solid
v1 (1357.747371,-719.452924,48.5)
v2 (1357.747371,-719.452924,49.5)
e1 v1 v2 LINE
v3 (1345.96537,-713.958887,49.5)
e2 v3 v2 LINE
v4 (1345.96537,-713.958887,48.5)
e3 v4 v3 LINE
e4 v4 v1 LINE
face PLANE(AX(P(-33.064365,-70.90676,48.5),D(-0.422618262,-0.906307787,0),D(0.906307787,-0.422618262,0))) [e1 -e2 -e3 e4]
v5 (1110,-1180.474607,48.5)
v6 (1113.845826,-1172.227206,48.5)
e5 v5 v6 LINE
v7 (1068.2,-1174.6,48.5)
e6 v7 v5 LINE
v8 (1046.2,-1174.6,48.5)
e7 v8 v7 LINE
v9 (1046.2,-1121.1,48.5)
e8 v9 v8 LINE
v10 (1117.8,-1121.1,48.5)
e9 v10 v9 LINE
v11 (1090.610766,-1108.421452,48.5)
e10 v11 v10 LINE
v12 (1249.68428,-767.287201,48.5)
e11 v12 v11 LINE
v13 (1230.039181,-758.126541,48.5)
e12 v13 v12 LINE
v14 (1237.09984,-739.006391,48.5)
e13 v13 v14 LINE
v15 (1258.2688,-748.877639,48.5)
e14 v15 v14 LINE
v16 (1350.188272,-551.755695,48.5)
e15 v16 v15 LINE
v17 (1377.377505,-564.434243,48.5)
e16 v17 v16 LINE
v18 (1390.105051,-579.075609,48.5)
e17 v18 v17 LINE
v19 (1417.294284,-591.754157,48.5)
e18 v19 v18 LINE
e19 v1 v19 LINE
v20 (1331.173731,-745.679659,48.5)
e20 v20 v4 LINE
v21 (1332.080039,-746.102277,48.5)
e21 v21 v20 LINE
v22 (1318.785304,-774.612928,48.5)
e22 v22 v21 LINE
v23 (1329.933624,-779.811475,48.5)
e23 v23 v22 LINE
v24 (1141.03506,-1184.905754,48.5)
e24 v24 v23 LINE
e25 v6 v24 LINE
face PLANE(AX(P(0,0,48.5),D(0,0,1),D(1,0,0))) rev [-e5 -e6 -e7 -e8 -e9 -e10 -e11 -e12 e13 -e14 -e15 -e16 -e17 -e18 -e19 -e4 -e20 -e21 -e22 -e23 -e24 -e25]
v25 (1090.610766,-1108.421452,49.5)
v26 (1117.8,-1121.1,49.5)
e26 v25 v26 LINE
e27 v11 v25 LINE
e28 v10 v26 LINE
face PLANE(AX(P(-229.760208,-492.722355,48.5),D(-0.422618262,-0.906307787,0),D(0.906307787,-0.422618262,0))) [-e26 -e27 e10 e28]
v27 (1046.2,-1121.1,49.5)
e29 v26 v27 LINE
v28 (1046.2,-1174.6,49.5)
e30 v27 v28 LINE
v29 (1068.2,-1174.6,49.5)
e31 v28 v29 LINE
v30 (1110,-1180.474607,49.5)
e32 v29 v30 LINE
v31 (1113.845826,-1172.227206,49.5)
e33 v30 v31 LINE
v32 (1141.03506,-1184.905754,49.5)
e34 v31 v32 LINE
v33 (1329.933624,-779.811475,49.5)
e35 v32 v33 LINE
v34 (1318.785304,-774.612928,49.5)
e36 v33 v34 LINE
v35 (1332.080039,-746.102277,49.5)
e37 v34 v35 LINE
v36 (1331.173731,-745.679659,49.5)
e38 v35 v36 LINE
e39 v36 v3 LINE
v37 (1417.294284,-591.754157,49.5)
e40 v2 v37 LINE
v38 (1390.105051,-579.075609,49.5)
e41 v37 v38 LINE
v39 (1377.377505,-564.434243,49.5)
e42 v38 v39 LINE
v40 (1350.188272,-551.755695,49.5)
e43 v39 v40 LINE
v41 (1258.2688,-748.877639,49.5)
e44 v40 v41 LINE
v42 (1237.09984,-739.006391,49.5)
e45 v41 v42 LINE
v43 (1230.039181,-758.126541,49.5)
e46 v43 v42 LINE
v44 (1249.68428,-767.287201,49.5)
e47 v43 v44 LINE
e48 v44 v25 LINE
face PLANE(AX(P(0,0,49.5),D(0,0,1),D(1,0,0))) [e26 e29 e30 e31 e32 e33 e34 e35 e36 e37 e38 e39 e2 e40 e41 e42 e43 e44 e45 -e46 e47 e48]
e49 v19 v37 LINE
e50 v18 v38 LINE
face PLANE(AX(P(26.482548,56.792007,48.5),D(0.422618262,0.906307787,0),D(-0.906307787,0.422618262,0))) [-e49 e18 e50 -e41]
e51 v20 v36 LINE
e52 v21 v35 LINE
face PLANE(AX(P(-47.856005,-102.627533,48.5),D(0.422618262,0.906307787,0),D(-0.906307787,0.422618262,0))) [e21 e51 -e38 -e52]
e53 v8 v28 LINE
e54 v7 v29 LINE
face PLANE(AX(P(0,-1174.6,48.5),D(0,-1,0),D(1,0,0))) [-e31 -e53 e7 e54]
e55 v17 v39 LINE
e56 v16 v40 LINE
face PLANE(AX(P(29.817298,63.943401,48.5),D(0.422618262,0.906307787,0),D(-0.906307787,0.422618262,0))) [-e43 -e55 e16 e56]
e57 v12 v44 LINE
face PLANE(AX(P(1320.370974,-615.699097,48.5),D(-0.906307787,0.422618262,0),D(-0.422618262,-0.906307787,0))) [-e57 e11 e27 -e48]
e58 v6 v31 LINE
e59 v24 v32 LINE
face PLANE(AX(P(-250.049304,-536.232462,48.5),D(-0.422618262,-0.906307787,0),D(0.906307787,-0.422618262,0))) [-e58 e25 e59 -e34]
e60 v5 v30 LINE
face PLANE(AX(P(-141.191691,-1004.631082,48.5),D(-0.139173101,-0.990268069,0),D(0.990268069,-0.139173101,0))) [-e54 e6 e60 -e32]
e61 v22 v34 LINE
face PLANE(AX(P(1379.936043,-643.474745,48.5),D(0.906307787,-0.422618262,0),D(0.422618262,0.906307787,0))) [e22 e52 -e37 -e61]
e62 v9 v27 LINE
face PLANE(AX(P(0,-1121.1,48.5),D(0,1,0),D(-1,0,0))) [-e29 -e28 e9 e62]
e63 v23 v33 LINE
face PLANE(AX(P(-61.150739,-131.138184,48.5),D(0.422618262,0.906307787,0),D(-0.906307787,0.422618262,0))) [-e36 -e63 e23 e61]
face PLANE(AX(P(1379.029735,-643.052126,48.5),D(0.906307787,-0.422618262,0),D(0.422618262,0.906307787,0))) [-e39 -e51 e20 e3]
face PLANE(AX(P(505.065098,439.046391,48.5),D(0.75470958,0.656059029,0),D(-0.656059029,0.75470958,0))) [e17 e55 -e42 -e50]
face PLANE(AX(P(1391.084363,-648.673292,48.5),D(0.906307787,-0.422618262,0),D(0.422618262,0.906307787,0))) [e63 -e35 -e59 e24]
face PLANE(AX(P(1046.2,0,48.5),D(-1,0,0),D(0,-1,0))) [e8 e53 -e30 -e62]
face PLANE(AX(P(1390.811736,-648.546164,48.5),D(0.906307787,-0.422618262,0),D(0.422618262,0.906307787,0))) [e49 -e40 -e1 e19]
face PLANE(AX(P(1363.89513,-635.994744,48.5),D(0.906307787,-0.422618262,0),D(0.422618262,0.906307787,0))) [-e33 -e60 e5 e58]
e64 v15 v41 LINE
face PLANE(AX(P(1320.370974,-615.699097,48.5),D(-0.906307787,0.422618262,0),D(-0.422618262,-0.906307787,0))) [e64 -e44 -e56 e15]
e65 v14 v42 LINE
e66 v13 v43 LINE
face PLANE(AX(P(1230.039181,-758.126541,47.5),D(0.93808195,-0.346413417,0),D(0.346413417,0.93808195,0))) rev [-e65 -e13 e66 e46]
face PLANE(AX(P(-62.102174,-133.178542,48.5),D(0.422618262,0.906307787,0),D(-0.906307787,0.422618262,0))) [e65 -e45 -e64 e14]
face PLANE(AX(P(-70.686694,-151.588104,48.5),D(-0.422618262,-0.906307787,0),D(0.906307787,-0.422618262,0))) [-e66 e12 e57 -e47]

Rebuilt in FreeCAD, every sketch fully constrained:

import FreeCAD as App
import Part
import Sketcher
from FreeCAD import Vector
Q = App.Units.Quantity


def add_polygon(sketch, points):
    """Adds a closed chain of lines whose ends are joined by coincident constraints."""
    first, n = sketch.GeometryCount, len(points)
    for a, b in zip(points, points[1:] + points[:1]):
        sketch.addGeometry(Part.LineSegment(App.Vector(*a, 0), App.Vector(*b, 0)), False)
    for i in range(n):
        sketch.addConstraint(Sketcher.Constraint("Coincident", first + i, 2, first + (i + 1) % n, 1))

doc = App.newDocument("Part")
body = doc.addObject("PartDesign::Body", "Body")

sketch1 = body.newObject("Sketcher::SketchObject", "Sketch")
sketch1.AttachmentSupport = (doc.getObject("XY_Plane"), [""])
sketch1.MapMode = "FlatFace"
sketch1.AttachmentOffset = App.Placement(Vector(0, 0, 49.5), App.Rotation())
add_polygon(sketch1, [(1390.1, -579.1), (1377.4, -564.4), (1350.2, -551.8), (1258.3, -748.9), (1237.1, -739), (1239.7, -733.8), (1226.4, -727), (1213.4, -757.7), (1226.7, -764.5), (1230, -758.1), (1249.7, -767.3), (1198.4, -877.2), (1183.1, -910), (1170.3, -937.6), (1150.7, -979.6), (1135.5, -1012.3), (1122.3, -1040.4), (1107.9, -1071.4), (1090.6, -1108.4), (1117.8, -1121.1), (1046.2, -1121.1), (1046.2, -1174.6), (1068.2, -1174.6), (1110, -1180.5), (1113.8, -1172.2), (1141, -1184.9), (1329.9, -779.8), (1318.8, -774.6), (1332.1, -746.1), (1331.2, -745.7), (1346, -714), (1357.7, -719.5), (1417.3, -591.8)])
sketch1.addConstraint([
    Sketcher.Constraint("Horizontal", 19),
    Sketcher.Constraint("Vertical", 20),
    Sketcher.Constraint("Horizontal", 21),
    Sketcher.Constraint("Perpendicular", 1, 2),
    Sketcher.Constraint("Perpendicular", 2, 3),
    Sketcher.Constraint("Perpendicular", 4, 5),
    Sketcher.Constraint("Parallel", 5, 7),
    Sketcher.Constraint("Perpendicular", 7, 8),
    Sketcher.Constraint("Parallel", 3, 9),
    Sketcher.Constraint("Perpendicular", 9, 10),
    Sketcher.Constraint("Parallel", 10, 11),
    Sketcher.Constraint("Parallel", 11, 12),
    Sketcher.Constraint("Parallel", 12, 13),
    Sketcher.Constraint("Parallel", 13, 14),
    Sketcher.Constraint("Parallel", 14, 15),
    Sketcher.Constraint("Parallel", 15, 16),
    Sketcher.Constraint("Parallel", 16, 17),
    Sketcher.Constraint("Perpendicular", 17, 18),
    Sketcher.Constraint("Perpendicular", 18, 23),
    Sketcher.Constraint("Perpendicular", 23, 24),
    Sketcher.Constraint("Perpendicular", 24, 25),
    Sketcher.Constraint("Perpendicular", 25, 26),
    Sketcher.Constraint("Perpendicular", 26, 27),
    Sketcher.Constraint("Perpendicular", 27, 28),
    Sketcher.Constraint("Perpendicular", 28, 29),
    Sketcher.Constraint("Perpendicular", 29, 30),
    Sketcher.Constraint("Perpendicular", 30, 31),
    Sketcher.Constraint("Perpendicular", 31, 32),
    Sketcher.Constraint("Equal", 5, 7),
    Sketcher.Constraint("Equal", 1, 18),
    Sketcher.Constraint("Equal", 18, 24),
    Sketcher.Constraint("Equal", 24, 32),
    Sketcher.Constraint("DistanceX", 21, 1, 21, 2, Q("22 mm")),
    Sketcher.Constraint("Angle", 0, Q("131 deg")),
    Sketcher.Constraint("Angle", 1, Q("155 deg")),
    Sketcher.Constraint("Angle", 22, Q("-8 deg")),
    Sketcher.Constraint("Distance", 1, Q("30 mm")),
    Sketcher.Constraint("Distance", 5, Q("15 mm")),
    Sketcher.Constraint("Distance", 14, Q("36 mm")),
    Sketcher.Constraint("Distance", 15, Q("31 mm")),
    Sketcher.Constraint("Distance", 28, Q("1 mm")),
    Sketcher.Constraint("Distance", 29, Q("35 mm")),
    Sketcher.Constraint("Distance", 30, Q("13 mm")),
    Sketcher.Constraint("DistanceX", 19, 2, 19, 1, Q("71.6 mm")),
    Sketcher.Constraint("DistanceY", 20, 2, 20, 1, Q("53.5 mm")),
    Sketcher.Constraint("DistanceY", 5, 2, -1, 1, Q("727 mm")),
    Sketcher.Constraint("DistanceX", -1, 1, 22, 2, Q("1110 mm")),
    Sketcher.Constraint("DistanceX", 6, 2, 5, 2, Q("13 mm")),
    Sketcher.Constraint("Distance", 0, Q("19.4 mm")),
    Sketcher.Constraint("Distance", 2, Q("217.5 mm")),
    Sketcher.Constraint("Distance", 4, Q("5.8 mm")),
    Sketcher.Constraint("Distance", 10, Q("121.3 mm")),
    Sketcher.Constraint("Distance", 11, Q("36.2 mm")),
    Sketcher.Constraint("Distance", 12, Q("30.4 mm")),
    Sketcher.Constraint("Distance", 13, Q("46.4 mm")),
    Sketcher.Constraint("Distance", 16, Q("34.2 mm")),
    Sketcher.Constraint("Distance", 17, Q("40.9 mm")),
    Sketcher.Constraint("Distance", 23, Q("9.1 mm")),
    Sketcher.Constraint("Distance", 31, Q("140.9 mm")),
    Sketcher.Constraint("DistanceX", -1, 1, 5, 2, Q("1226.4 mm")),
    Sketcher.Constraint("DistanceY", 6, 2, -1, 1, Q("757.7 mm")),
    Sketcher.Constraint("DistanceX", -1, 1, 18, 2, Q("1117.8 mm")),
    Sketcher.Constraint("DistanceY", 18, 2, -1, 1, Q("1121.1 mm")),
    Sketcher.Constraint("DistanceX", -1, 1, 2, 2, Q("1258.2688 mm")),
    Sketcher.Constraint("DistanceX", 8, 2, 9, 2, Q("19.645099 mm")),
    Sketcher.Constraint("DistanceY", 26, 2, -1, 1, Q("774.612928 mm")),
])
pad1 = body.newObject("PartDesign::Pad", "Pad")
pad1.Profile = sketch1
pad1.Length = 1
pad1.Reversed = True

sketch2 = body.newObject("Sketcher::SketchObject", "Sketch001")
sketch2.AttachmentSupport = (doc.getObject("XY_Plane"), [""])
sketch2.MapMode = "FlatFace"
sketch2.AttachmentOffset = App.Placement(Vector(0, 0, 49.5), App.Rotation())
add_polygon(sketch2, [(1240, -734), (1226, -727), (1213, -758), (1227, -765), (1230, -758), (1237, -739)])
sketch2.addConstraint([
    Sketcher.Constraint("Parallel", 0, 2),
    Sketcher.Constraint("Perpendicular", 2, 3),
    Sketcher.Constraint("Parallel", 3, 5),
    Sketcher.Constraint("Equal", 0, 2),
    Sketcher.Constraint("Distance", 0, Q("15 mm")),
    Sketcher.Constraint("DistanceY", 0, 2, -1, 1, Q("727 mm")),
    Sketcher.Constraint("DistanceX", 1, 2, 0, 2, Q("13 mm")),
    Sketcher.Constraint("Distance", 5, Q("5.8 mm")),
    Sketcher.Constraint("DistanceX", -1, 1, 0, 2, Q("1226.4 mm")),
    Sketcher.Constraint("DistanceY", 1, 2, -1, 1, Q("757.7 mm")),
    Sketcher.Constraint("DistanceX", -1, 1, 3, 2, Q("1230.039181 mm")),
    Sketcher.Constraint("DistanceY", 3, 2, -1, 1, Q("758.126541 mm")),
])
pocket1 = body.newObject("PartDesign::Pocket", "Pocket")
pocket1.Profile = sketch2
pocket1.Length = 2

doc.recompute()
